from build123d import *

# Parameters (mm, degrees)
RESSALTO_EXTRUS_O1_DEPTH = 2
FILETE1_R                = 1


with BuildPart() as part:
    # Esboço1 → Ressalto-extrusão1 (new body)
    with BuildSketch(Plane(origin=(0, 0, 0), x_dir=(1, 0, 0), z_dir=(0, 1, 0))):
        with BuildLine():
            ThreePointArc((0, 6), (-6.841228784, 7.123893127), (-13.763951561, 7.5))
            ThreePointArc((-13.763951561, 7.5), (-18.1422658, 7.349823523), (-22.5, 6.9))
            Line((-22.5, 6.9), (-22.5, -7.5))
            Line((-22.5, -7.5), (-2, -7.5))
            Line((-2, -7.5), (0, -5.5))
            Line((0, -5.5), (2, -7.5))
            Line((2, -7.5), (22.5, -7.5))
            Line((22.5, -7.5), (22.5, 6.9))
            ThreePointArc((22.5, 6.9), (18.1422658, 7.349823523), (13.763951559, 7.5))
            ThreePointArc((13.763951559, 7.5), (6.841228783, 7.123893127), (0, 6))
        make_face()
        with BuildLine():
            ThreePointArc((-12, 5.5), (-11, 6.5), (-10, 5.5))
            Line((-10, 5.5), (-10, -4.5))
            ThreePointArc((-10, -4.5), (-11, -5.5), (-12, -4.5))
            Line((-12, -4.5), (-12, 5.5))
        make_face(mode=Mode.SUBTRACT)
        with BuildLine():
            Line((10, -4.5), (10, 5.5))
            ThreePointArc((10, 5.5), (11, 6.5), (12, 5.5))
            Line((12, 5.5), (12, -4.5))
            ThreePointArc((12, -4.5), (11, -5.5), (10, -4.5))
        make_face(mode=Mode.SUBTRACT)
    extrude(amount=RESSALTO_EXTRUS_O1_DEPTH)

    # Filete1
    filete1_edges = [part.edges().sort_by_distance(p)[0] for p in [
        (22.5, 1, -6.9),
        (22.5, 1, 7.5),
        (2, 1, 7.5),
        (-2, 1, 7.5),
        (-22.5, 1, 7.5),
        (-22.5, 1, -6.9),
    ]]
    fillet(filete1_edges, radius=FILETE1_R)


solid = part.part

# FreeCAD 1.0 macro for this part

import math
import FreeCAD as App
import Part
import Sketcher
Q = App.Units.Quantity


def edges_at(feature, points):
    """Names of the edges that pass closest to the given points."""
    edges = feature.Shape.Edges
    near = lambda p: min(range(len(edges)), key=lambda i: edges[i].distToShape(Part.Vertex(*p))[0])
    return sorted({f"Edge{near(p) + 1}" for p in points})

doc = App.newDocument("Part")
body = doc.addObject("PartDesign::Body", "Body")

# Sketch on XZ plane
sketch1 = body.newObject("Sketcher::SketchObject", "Sketch")
sketch1.AttachmentSupport = (doc.getObject("XZ_Plane"), [""])
sketch1.MapMode = "FlatFace"
sketch1.addGeometry([
    Part.ArcOfCircle(Part.Circle(App.Vector(-13.763951, 56.398787, 0), App.Vector(0, 0, 1), 63.898787), math.radians(-90), math.radians(-77.560864)),  # 0
    Part.ArcOfCircle(Part.Circle(App.Vector(-13.763951, 56.398786, 0), App.Vector(0, 0, 1), 63.898786), math.radians(-97.857916), math.radians(-90)),  # 1
    Part.LineSegment(App.Vector(-22.5, -6.9, 0), App.Vector(-22.5, 7.5, 0)),  # 2
    Part.LineSegment(App.Vector(-22.5, 7.5, 0), App.Vector(-2, 7.5, 0)),  # 3
    Part.LineSegment(App.Vector(-2, 7.5, 0), App.Vector(0, 5.5, 0)),  # 4
    Part.LineSegment(App.Vector(0, 5.5, 0), App.Vector(2, 7.5, 0)),  # 5
    Part.LineSegment(App.Vector(2, 7.5, 0), App.Vector(22.5, 7.5, 0)),  # 6
    Part.LineSegment(App.Vector(22.5, 7.5, 0), App.Vector(22.5, -6.9, 0)),  # 7
    Part.ArcOfCircle(Part.Circle(App.Vector(13.763951, 56.398786, 0), App.Vector(0, 0, 1), 63.898786), math.radians(-90), math.radians(-82.142084)),  # 8
    Part.ArcOfCircle(Part.Circle(App.Vector(13.763951, 56.398787, 0), App.Vector(0, 0, 1), 63.898787), math.radians(-102.439136), math.radians(-90)),  # 9
    Part.LineSegment(App.Vector(-12, 4.5, 0), App.Vector(-12, -5.5, 0)),  # 10
    Part.ArcOfCircle(Part.Circle(App.Vector(-11, -5.5, 0), App.Vector(0, 0, 1), 1), math.radians(180), math.radians(360)),  # 11
    Part.LineSegment(App.Vector(-10, -5.5, 0), App.Vector(-10, 4.5, 0)),  # 12
    Part.ArcOfCircle(Part.Circle(App.Vector(-11, 4.5, 0), App.Vector(0, 0, 1), 1), math.radians(0), math.radians(180)),  # 13
    Part.ArcOfCircle(Part.Circle(App.Vector(11, 4.5, 0), App.Vector(0, 0, 1), 1), math.radians(0), math.radians(180)),  # 14
    Part.LineSegment(App.Vector(10, 4.5, 0), App.Vector(10, -5.5, 0)),  # 15
    Part.ArcOfCircle(Part.Circle(App.Vector(11, -5.5, 0), App.Vector(0, 0, 1), 1), math.radians(180), math.radians(360)),  # 16
    Part.LineSegment(App.Vector(12, -5.5, 0), App.Vector(12, 4.5, 0)),  # 17
], False)
sketch1.addConstraint([
    Sketcher.Constraint("Tangent", 0, 1, 1, 2),
    Sketcher.Constraint("Coincident", 1, 1, 2, 1),
    Sketcher.Constraint("Coincident", 2, 2, 3, 1),
    Sketcher.Constraint("Coincident", 3, 2, 4, 1),
    Sketcher.Constraint("Coincident", 4, 2, 5, 1),
    Sketcher.Constraint("Coincident", 5, 2, 6, 1),
    Sketcher.Constraint("Coincident", 6, 2, 7, 1),
    Sketcher.Constraint("Coincident", 7, 2, 8, 2),
    Sketcher.Constraint("Tangent", 8, 1, 9, 2),
    Sketcher.Constraint("Coincident", 9, 1, 0, 2),
    Sketcher.Constraint("Tangent", 10, 2, 11, 1),
    Sketcher.Constraint("Tangent", 11, 2, 12, 1),
    Sketcher.Constraint("Tangent", 12, 2, 13, 1),
    Sketcher.Constraint("Tangent", 13, 2, 10, 1),
    Sketcher.Constraint("Tangent", 14, 2, 15, 1),
    Sketcher.Constraint("Tangent", 15, 2, 16, 1),
    Sketcher.Constraint("Tangent", 16, 2, 17, 1),
    Sketcher.Constraint("Tangent", 17, 2, 14, 1),
    Sketcher.Constraint("Vertical", 2),
    Sketcher.Constraint("Horizontal", 3),
    Sketcher.Constraint("Horizontal", 6),
    Sketcher.Constraint("Vertical", 7),
    Sketcher.Constraint("Vertical", 10),
    Sketcher.Constraint("Vertical", 12),
    Sketcher.Constraint("Vertical", 15),
    Sketcher.Constraint("Vertical", 17),
    Sketcher.Constraint("Equal", 0, 1),
    Sketcher.Constraint("Equal", 1, 8),
    Sketcher.Constraint("Equal", 8, 9),
    Sketcher.Constraint("Equal", 13, 14),
    Sketcher.Constraint("Symmetric", 0, 3, 8, 3, -2),
    Sketcher.Constraint("Symmetric", 13, 3, 14, 3, -2),
    Sketcher.Constraint("Symmetric", 3, 2, 5, 2, -2),
    Sketcher.Constraint("PointOnObject", 4, 2, -2),
    Sketcher.Constraint("Perpendicular", 4, 5),
    Sketcher.Constraint("Horizontal", 11, 3, 16, 3),
    Sketcher.Constraint("Horizontal", 1, 1, 7, 2),
    Sketcher.Constraint("Vertical", 1, 3, 0, 1),
    Sketcher.Constraint("Vertical", 9, 3, 8, 1),
    Sketcher.Constraint("Radius", 11, Q("1 mm")),
    Sketcher.Constraint("DistanceY", 10, 2, 10, 1, Q("10 mm")),
    Sketcher.Constraint("DistanceX", 3, 1, 3, 2, Q("20.5 mm")),
    Sketcher.Constraint("DistanceY", 2, 1, 2, 2, Q("14.4 mm")),
    Sketcher.Constraint("DistanceX", 11, 3, -1, 1, Q("11 mm")),
    Sketcher.Constraint("DistanceX", 3, 2, -1, 1, Q("2 mm")),
    Sketcher.Constraint("DistanceY", 9, 1, -1, 1, Q("6 mm")),
    Sketcher.Constraint("DistanceY", 0, 1, 11, 3, Q("2 mm")),
    Sketcher.Constraint("DistanceY", 13, 3, 2, 2, Q("3 mm")),
    Sketcher.Constraint("DistanceY", 11, 3, -1, 1, Q("5.5 mm")),
])
pad1 = body.newObject("PartDesign::Pad", "Pad")
pad1.Profile = sketch1
pad1.Length = 2
pad1.Reversed = True
doc.recompute()

fillet = body.newObject("PartDesign::Fillet", "Fillet")
fillet.Base = (pad1, edges_at(pad1, [
    (22.5, 1, -6.9),
    (22.5, 1, 7.5),
    (2, 1, 7.5),
    (-2, 1, 7.5),
    (-22.5, 1, 7.5),
    (-22.5, 1, -6.9),
]))
fillet.Radius = 1

doc.recompute()
